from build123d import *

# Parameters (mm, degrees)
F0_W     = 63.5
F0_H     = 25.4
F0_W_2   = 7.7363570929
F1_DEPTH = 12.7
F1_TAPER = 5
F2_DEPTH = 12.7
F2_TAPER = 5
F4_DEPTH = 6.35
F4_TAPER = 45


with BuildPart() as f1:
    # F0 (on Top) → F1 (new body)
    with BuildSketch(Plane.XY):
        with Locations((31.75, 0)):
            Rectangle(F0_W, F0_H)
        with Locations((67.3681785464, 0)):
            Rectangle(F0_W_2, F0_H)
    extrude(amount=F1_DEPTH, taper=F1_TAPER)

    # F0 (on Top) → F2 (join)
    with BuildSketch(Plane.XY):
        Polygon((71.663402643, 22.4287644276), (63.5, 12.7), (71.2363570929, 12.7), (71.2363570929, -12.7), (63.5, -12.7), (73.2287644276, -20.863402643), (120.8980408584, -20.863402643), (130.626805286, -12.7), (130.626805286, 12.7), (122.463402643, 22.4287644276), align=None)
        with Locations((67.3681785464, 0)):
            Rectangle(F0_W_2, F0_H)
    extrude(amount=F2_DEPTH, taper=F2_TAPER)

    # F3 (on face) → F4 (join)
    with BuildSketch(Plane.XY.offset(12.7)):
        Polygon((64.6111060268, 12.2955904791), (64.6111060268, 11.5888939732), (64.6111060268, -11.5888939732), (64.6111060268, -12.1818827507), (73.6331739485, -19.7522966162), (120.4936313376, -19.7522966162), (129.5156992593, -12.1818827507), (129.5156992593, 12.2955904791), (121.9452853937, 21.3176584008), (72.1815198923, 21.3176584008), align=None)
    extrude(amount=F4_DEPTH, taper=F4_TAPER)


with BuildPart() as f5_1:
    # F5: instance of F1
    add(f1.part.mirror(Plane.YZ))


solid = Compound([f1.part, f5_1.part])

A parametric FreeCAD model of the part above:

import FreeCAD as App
import Part
import Sketcher

V = App.Vector
Q = App.Units.Quantity


def add_polygon(sketch, points):
    """Adds a closed chain of lines whose ends are joined by coincident constraints."""
    first, n = sketch.GeometryCount, len(points)
    for a, b in zip(points, points[1:] + points[:1]):
        sketch.addGeometry(Part.LineSegment(App.Vector(*a, 0), App.Vector(*b, 0)), False)
    for i in range(n):
        sketch.addConstraint(Sketcher.Constraint("Coincident", first + i, 2, first + (i + 1) % n, 1))

doc = App.newDocument("Part")
body = doc.addObject("PartDesign::Body", "Body")

# Sketch on XY plane
sketch1 = doc.addObject("Sketcher::SketchObject", "Sketch")
body.addObject(sketch1)
sketch1.AttachmentSupport = (doc.XY_Plane, [""])
sketch1.MapMode = "FlatFace"
add_polygon(sketch1, [(0, 13), (0, -13), (71, -13), (71, 13)])  # lines 0-3
sketch1.addConstraint(Sketcher.Constraint("Vertical", 0))
sketch1.addConstraint(Sketcher.Constraint("Horizontal", 1))
sketch1.addConstraint(Sketcher.Constraint("Vertical", 2))
sketch1.addConstraint(Sketcher.Constraint("Horizontal", 3))
sketch1.addConstraint(Sketcher.Constraint("Symmetric", 0, 2, 3, 2, -1, 1))
sketch1.addConstraint(Sketcher.Constraint("DistanceY", 0, 2, 0, 1, Q("1 in")))
sketch1.addConstraint(Sketcher.Constraint("DistanceX", 1, 1, 1, 2, 71.236357))
pad1 = doc.addObject("PartDesign::Pad", "Pad")
body.addObject(pad1)
pad1.Profile = sketch1
pad1.Length = Q("0.5 in")
pad1.TaperAngle = -5

# Sketch on XY plane
sketch2 = doc.addObject("Sketcher::SketchObject", "Sketch001")
body.addObject(sketch2)
sketch2.AttachmentSupport = (doc.XY_Plane, [""])
sketch2.MapMode = "FlatFace"
add_polygon(sketch2, [(72, 22), (64, 13), (64, -13), (73, -21), (121, -21), (131, -13), (131, 13), (122, 22)])  # lines 0-7
sketch2.addConstraint(Sketcher.Constraint("Vertical", 1))
sketch2.addConstraint(Sketcher.Constraint("Horizontal", 3))
sketch2.addConstraint(Sketcher.Constraint("Vertical", 5))
sketch2.addConstraint(Sketcher.Constraint("Horizontal", 7))
sketch2.addConstraint(Sketcher.Constraint("Perpendicular", 0, 2))
sketch2.addConstraint(Sketcher.Constraint("Perpendicular", 4, 6))
sketch2.addConstraint(Sketcher.Constraint("Horizontal", 1, 2, 4, 2))
sketch2.addConstraint(Sketcher.Constraint("Horizontal", 0, 2, 5, 2))
sketch2.addConstraint(Sketcher.Constraint("Equal", 0, 2))
sketch2.addConstraint(Sketcher.Constraint("Equal", 2, 4))
sketch2.addConstraint(Sketcher.Constraint("DistanceX", 7, 2, 7, 1, Q("2 in")))
sketch2.addConstraint(Sketcher.Constraint("DistanceY", 1, 2, 1, 1, Q("1 in")))
sketch2.addConstraint(Sketcher.Constraint("Angle", 0, Q("-130 deg")))
sketch2.addConstraint(Sketcher.Constraint("Distance", 0, Q("0.5 in")))
sketch2.addConstraint(Sketcher.Constraint("DistanceX", -1, 1, 0, 2, Q("2.5 in")))
sketch2.addConstraint(Sketcher.Constraint("DistanceY", -1, 1, 0, 2, Q("0.5 in")))
pad2 = doc.addObject("PartDesign::Pad", "Pad001")
body.addObject(pad2)
pad2.Profile = sketch2
pad2.Length = Q("0.5 in")
pad2.TaperAngle = -5

# Sketch on XY plane
sketch3 = doc.addObject("Sketcher::SketchObject", "Sketch002")
body.addObject(sketch3)
sketch3.AttachmentSupport = (doc.XY_Plane, [""])
sketch3.MapMode = "FlatFace"
sketch3.AttachmentOffset = App.Placement(V(0, 0, 0.5 * 25.4), App.Rotation())
add_polygon(sketch3, [(65, 12), (65, -12), (74, -20), (120, -20), (130, -12), (130, 12), (122, 21), (72, 21)])  # lines 0-7
sketch3.addConstraint(Sketcher.Constraint("Vertical", 0))
sketch3.addConstraint(Sketcher.Constraint("Horizontal", 2))
sketch3.addConstraint(Sketcher.Constraint("Vertical", 4))
sketch3.addConstraint(Sketcher.Constraint("Horizontal", 6))
sketch3.addConstraint(Sketcher.Constraint("Perpendicular", 3, 5))
sketch3.addConstraint(Sketcher.Constraint("Perpendicular", 1, 7))
sketch3.addConstraint(Sketcher.Constraint("Horizontal", 0, 2, 3, 2))
sketch3.addConstraint(Sketcher.Constraint("Horizontal", 4, 2, 7, 2))
sketch3.addConstraint(Sketcher.Constraint("Equal", 1, 3))
sketch3.addConstraint(Sketcher.Constraint("Equal", 3, 5))
sketch3.addConstraint(Sketcher.Constraint("Angle", 1, Q("-40 deg")))
sketch3.addConstraint(Sketcher.Constraint("DistanceX", 2, 1, 2, 2, Q("1.8448999 in")))
sketch3.addConstraint(Sketcher.Constraint("DistanceX", -1, 1, 3, 2, 129.515699))
sketch3.addConstraint(Sketcher.Constraint("DistanceX", 6, 2, 6, 1, 49.763766))
sketch3.addConstraint(Sketcher.Constraint("DistanceY", 0, 2, 0, 1, 24.477473))
sketch3.addConstraint(Sketcher.Constraint("DistanceY", -1, 1, 4, 2, 12.29559))
pad3 = doc.addObject("PartDesign::Pad", "Pad002")
body.addObject(pad3)
pad3.Profile = sketch3
pad3.Length = Q("0.25 in")
pad3.TaperAngle = -45
body2 = doc.addObject("PartDesign::Body", "Body001")
doc.recompute()

mirroring = doc.addObject("Part::Mirroring", "Mirroring")
mirroring.Source = body
mirroring.Base = V(0, 0, 0)
mirroring.Normal = V(1, 0, 0)
body2.BaseFeature = mirroring
doc.recompute()
mirroring.Visibility = False

doc.recompute()
